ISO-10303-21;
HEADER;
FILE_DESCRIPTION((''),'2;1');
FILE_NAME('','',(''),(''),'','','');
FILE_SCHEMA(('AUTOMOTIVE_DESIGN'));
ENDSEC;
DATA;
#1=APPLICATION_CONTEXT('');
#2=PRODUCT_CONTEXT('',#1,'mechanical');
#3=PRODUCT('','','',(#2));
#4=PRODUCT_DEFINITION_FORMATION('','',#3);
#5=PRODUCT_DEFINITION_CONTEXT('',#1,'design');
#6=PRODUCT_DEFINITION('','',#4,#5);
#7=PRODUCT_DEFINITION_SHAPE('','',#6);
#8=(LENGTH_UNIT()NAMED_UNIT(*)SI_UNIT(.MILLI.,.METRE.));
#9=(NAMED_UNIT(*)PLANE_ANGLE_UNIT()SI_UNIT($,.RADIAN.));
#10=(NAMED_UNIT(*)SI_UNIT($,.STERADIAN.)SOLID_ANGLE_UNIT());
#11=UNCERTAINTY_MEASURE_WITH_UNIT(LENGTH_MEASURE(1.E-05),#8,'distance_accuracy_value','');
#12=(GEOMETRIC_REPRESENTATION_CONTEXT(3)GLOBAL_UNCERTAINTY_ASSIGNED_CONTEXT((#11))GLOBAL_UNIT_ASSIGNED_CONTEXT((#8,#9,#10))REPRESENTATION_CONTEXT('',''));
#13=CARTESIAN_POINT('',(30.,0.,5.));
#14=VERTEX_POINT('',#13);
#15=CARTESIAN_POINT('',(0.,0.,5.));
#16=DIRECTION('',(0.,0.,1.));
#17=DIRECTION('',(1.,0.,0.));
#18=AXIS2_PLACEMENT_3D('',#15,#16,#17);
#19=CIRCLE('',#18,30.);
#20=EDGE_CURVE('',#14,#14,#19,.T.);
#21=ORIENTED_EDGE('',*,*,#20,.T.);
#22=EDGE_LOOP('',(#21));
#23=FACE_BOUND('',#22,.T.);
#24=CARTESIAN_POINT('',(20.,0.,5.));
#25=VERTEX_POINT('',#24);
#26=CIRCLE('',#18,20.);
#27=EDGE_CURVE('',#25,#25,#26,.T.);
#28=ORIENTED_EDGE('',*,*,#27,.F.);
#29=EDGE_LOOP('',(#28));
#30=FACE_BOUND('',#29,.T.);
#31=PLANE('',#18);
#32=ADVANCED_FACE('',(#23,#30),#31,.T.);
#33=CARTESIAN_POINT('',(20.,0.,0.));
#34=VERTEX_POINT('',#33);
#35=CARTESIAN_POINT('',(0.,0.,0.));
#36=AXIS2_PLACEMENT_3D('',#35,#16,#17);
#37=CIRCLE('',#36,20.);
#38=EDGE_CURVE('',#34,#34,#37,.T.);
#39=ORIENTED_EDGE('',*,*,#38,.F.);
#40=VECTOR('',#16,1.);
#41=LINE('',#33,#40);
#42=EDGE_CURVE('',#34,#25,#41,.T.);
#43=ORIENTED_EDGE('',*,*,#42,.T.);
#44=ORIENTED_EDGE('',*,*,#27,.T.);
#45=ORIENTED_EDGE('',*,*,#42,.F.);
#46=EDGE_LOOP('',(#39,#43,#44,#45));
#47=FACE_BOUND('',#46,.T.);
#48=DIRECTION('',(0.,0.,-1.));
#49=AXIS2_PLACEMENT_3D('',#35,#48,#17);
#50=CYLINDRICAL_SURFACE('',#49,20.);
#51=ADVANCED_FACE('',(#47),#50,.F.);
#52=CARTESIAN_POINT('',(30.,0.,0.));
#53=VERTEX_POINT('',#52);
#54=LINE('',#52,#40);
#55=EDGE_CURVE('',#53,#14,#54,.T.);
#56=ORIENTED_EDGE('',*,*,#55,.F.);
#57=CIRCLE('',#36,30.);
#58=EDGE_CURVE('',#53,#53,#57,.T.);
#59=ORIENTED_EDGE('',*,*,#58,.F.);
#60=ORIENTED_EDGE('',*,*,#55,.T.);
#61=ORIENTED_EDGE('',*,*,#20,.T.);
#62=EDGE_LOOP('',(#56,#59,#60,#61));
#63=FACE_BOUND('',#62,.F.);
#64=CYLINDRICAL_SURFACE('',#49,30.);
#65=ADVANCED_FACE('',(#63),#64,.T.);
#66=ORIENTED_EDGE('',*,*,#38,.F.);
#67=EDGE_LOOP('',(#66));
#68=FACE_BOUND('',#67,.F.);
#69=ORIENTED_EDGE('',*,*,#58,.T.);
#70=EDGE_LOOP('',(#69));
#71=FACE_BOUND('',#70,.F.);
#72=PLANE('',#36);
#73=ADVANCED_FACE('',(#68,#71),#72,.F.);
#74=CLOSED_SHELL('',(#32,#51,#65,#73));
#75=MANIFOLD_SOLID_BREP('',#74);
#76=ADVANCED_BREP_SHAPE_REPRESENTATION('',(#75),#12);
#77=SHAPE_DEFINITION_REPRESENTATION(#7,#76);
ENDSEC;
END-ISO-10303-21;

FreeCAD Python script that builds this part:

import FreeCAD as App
import Part
import Sketcher

V = App.Vector

doc = App.newDocument("Part")
body = doc.addObject("PartDesign::Body", "Body")

# Sketch on XY plane
sketch1 = doc.addObject("Sketcher::SketchObject", "Sketch")
body.addObject(sketch1)
sketch1.AttachmentSupport = (doc.XY_Plane, [""])
sketch1.MapMode = "FlatFace"
sketch1.addGeometry([
    Part.Circle(V(0, 0, 0), V(0, 0, 1), 30),
    Part.Circle(V(0, 0, 0), V(0, 0, 1), 20),
], False)
sketch1.addConstraint([
    Sketcher.Constraint("Coincident", 0, 3, -1, 1),
    Sketcher.Constraint("Coincident", 1, 3, -1, 1),
    Sketcher.Constraint("Diameter", 0, 60.0),
    Sketcher.Constraint("Diameter", 1, 40.0),
])
pad1 = doc.addObject("PartDesign::Pad", "Pad")
body.addObject(pad1)
pad1.Profile = sketch1
pad1.Length = 5

doc.recompute()
